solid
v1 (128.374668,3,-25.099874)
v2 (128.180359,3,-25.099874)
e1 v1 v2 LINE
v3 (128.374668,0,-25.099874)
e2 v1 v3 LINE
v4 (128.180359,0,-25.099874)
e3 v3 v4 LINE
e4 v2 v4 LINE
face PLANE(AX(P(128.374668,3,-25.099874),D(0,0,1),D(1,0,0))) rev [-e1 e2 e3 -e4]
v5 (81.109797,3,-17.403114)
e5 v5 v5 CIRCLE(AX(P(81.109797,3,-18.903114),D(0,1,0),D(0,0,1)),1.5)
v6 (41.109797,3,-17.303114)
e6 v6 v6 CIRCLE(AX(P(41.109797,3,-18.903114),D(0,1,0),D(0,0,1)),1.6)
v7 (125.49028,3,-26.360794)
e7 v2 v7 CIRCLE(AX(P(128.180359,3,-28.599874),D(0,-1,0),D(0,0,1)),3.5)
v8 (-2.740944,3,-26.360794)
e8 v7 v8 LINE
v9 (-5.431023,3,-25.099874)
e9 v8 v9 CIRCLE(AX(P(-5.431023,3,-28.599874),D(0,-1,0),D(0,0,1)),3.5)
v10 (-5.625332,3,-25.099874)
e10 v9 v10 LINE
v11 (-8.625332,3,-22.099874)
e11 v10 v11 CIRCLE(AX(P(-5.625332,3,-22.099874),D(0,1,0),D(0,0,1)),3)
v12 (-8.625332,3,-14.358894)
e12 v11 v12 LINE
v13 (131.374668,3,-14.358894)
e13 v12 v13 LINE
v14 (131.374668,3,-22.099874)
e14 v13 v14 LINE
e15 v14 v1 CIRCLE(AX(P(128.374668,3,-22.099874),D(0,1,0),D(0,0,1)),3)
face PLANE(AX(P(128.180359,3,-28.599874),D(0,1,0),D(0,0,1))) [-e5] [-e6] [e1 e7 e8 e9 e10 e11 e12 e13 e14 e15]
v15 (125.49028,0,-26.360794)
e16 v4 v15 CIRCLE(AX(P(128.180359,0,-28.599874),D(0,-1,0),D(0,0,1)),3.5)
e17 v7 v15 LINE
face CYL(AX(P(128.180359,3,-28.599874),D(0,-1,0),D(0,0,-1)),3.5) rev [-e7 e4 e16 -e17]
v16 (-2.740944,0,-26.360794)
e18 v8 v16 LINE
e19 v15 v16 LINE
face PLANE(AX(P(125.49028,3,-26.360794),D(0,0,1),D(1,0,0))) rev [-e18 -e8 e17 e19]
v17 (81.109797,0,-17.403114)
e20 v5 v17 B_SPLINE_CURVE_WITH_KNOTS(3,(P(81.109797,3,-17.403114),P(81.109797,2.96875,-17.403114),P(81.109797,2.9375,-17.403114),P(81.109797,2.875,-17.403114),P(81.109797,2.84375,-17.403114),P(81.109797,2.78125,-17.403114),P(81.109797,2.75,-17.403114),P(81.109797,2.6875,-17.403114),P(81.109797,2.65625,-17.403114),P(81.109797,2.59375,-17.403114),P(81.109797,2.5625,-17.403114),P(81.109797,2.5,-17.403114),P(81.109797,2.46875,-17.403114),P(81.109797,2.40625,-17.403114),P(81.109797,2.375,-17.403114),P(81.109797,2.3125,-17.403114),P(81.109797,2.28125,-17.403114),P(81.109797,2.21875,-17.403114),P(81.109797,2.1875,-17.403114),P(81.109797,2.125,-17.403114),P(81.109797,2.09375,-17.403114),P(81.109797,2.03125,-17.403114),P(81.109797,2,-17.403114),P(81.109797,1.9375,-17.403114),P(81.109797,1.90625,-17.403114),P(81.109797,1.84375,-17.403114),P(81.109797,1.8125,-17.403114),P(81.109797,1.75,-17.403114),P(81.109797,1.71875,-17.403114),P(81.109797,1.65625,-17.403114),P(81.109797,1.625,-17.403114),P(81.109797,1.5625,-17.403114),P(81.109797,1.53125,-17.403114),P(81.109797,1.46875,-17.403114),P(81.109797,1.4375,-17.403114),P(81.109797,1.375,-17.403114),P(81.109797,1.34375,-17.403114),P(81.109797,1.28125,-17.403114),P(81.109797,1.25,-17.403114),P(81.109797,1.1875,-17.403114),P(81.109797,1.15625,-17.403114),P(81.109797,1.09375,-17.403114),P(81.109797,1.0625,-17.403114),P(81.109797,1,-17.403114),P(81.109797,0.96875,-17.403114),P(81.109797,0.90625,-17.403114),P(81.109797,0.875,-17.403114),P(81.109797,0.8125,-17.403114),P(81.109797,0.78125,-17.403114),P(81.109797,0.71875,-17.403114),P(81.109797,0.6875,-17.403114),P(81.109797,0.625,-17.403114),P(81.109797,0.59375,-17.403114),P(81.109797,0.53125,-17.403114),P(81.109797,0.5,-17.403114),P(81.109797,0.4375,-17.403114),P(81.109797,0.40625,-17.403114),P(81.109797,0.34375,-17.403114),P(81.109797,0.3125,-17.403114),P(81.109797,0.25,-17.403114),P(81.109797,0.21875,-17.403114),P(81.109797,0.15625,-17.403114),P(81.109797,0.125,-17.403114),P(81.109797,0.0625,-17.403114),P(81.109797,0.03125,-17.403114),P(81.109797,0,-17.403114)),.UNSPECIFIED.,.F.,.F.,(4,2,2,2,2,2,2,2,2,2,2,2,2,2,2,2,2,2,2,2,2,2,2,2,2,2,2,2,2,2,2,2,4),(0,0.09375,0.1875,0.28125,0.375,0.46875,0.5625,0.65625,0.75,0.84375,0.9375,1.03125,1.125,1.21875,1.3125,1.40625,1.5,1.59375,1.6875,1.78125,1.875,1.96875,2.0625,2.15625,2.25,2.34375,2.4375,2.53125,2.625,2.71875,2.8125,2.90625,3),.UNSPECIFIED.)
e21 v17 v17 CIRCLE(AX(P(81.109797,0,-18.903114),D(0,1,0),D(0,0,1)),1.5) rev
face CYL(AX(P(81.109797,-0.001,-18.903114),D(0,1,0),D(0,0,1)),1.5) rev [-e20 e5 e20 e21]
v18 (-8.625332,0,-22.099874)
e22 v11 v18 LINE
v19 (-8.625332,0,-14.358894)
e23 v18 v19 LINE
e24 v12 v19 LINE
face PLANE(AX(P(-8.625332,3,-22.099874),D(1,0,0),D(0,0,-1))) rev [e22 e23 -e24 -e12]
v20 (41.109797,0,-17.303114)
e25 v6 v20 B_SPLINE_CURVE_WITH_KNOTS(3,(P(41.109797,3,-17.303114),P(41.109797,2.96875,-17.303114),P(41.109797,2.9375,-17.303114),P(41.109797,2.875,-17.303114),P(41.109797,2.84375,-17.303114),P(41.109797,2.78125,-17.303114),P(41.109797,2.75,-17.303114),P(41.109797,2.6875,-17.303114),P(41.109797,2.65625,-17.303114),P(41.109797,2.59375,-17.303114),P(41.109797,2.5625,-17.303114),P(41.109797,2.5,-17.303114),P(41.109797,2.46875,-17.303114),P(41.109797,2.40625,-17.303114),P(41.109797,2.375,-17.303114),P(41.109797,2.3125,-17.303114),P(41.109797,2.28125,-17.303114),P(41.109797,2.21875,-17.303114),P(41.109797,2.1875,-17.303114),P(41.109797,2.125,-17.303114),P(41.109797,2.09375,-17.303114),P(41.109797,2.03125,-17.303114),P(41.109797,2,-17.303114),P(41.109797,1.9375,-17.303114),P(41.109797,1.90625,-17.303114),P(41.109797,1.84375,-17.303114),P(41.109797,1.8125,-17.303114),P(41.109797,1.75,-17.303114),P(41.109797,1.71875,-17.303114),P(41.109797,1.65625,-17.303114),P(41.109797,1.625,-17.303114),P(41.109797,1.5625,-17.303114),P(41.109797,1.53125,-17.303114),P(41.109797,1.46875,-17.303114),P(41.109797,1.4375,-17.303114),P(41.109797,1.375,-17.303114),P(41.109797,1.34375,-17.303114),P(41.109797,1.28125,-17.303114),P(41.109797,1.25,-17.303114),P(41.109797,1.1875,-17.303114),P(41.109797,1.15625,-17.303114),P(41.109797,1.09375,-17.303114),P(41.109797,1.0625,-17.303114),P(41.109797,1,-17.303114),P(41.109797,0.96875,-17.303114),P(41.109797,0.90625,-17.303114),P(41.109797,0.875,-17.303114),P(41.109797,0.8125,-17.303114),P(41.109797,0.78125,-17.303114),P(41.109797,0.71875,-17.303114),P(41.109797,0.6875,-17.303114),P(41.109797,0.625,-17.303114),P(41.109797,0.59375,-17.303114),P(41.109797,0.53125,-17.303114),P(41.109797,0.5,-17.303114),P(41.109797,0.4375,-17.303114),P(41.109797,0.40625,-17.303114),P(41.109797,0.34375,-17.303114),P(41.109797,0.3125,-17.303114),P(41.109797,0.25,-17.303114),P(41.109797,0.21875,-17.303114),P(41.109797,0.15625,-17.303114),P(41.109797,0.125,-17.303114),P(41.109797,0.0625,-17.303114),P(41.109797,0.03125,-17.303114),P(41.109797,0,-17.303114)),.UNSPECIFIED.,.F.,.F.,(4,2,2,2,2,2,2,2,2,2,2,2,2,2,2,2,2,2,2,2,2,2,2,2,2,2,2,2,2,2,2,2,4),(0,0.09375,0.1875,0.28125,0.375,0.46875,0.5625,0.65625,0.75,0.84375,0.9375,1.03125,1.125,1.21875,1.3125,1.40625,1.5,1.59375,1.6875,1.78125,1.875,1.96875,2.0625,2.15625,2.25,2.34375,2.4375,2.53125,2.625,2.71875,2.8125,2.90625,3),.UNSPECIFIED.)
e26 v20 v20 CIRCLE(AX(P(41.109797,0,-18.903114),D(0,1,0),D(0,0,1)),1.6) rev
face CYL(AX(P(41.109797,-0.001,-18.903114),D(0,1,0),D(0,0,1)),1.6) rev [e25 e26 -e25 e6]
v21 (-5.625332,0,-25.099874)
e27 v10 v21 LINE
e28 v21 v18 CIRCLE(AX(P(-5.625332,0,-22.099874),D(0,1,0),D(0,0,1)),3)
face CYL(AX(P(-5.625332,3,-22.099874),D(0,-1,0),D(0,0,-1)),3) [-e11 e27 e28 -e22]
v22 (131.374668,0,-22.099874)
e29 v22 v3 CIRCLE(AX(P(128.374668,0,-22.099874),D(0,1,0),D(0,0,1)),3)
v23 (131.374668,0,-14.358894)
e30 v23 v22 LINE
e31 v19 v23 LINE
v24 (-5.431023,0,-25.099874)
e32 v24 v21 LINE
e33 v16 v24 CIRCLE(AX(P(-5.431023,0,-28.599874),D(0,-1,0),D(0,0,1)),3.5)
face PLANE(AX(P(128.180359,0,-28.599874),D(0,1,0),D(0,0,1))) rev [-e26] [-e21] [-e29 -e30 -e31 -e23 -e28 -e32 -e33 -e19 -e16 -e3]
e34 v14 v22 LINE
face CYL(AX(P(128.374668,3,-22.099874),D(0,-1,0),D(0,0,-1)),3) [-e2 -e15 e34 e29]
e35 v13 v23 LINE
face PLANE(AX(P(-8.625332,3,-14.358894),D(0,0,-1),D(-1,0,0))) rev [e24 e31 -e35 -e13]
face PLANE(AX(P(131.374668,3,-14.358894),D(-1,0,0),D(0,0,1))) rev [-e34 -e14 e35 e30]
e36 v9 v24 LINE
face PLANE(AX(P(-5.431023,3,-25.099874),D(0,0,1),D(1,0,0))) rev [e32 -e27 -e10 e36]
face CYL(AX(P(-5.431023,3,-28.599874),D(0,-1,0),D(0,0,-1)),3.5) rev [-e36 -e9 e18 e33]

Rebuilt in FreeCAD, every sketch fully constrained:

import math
import FreeCAD as App
import Part
import Sketcher

V = App.Vector

doc = App.newDocument("Part")
params = doc.addObject("Spreadsheet::Sheet", "Params")
for row, (alias, value) in enumerate([
    ("sketch1_radius", "3 mm"),
    ("sketch1_radius2", "3.5 mm"),
    ("sketch1_width", "140 mm"),
    ("pad1_length", "3 mm"),
    ("sketch2_diameter", "3 mm"),
    ("sketch3_diameter", "3.2 mm"),
], start=1):
    params.set(f"A{row}", alias)
    params.set(f"B{row}", "=" + value)
    params.setAlias(f"B{row}", alias)

body = doc.addObject("PartDesign::Body", "Body")

# Sketch on XZ plane
sketch1 = doc.addObject("Sketcher::SketchObject", "Sketch")
body.addObject(sketch1)
sketch1.AttachmentSupport = (doc.XZ_Plane, [""])
sketch1.MapMode = "FlatFace"
sketch1.addGeometry([
    Part.LineSegment(V(125.49, -26.36, 0), V(-2.74, -26.36, 0)),  # 0
    Part.ArcOfCircle(Part.Circle(V(-5.43, -28.6, 0), V(0, 0, 1), 3.5), math.radians(40), math.radians(90)),  # 1
    Part.LineSegment(V(-5.43, -25.1, 0), V(-5.63, -25.1, 0)),  # 2
    Part.ArcOfCircle(Part.Circle(V(-5.63, -22.1, 0), V(0, 0, 1), 3), math.radians(-180), math.radians(-90)),  # 3
    Part.LineSegment(V(-8.63, -22.1, 0), V(-8.63, -14.36, 0)),  # 4
    Part.LineSegment(V(-8.63, -14.36, 0), V(131.37, -14.36, 0)),  # 5
    Part.LineSegment(V(131.37, -14.36, 0), V(131.37, -22.1, 0)),  # 6
    Part.ArcOfCircle(Part.Circle(V(128.37, -22.1, 0), V(0, 0, 1), 3), math.radians(-90), math.radians(0)),  # 7
    Part.LineSegment(V(128.37, -25.1, 0), V(128.18, -25.1, 0)),  # 8
    Part.ArcOfCircle(Part.Circle(V(128.18, -28.6, 0), V(0, 0, 1), 3.5), math.radians(90), math.radians(140)),  # 9
], False)
sketch1.addConstraint([
    Sketcher.Constraint("Coincident", 0, 2, 1, 1),
    Sketcher.Constraint("Tangent", 1, 2, 2, 1),
    Sketcher.Constraint("Tangent", 2, 2, 3, 2),
    Sketcher.Constraint("Tangent", 3, 1, 4, 1),
    Sketcher.Constraint("Coincident", 4, 2, 5, 1),
    Sketcher.Constraint("Coincident", 5, 2, 6, 1),
    Sketcher.Constraint("Tangent", 6, 2, 7, 2),
    Sketcher.Constraint("Tangent", 7, 1, 8, 1),
    Sketcher.Constraint("Tangent", 8, 2, 9, 1),
    Sketcher.Constraint("Coincident", 9, 2, 0, 1),
    Sketcher.Constraint("Horizontal", 0),
    Sketcher.Constraint("Horizontal", 2),
    Sketcher.Constraint("Vertical", 4),
    Sketcher.Constraint("Horizontal", 5),
    Sketcher.Constraint("Vertical", 6),
    Sketcher.Constraint("Horizontal", 8),
    Sketcher.Constraint("Equal", 3, 7),
    Sketcher.Constraint("Equal", 1, 9),
    Sketcher.Constraint("Horizontal", 3, 3, 7, 3),
    Sketcher.Constraint("Equal", 2, 8),
    Sketcher.Constraint("Radius", 3, 3.0),
    Sketcher.Constraint("Radius", 1, 3.5),
    Sketcher.Constraint("DistanceX", 5, 1, 5, 2, 140.0),
    Sketcher.Constraint("DistanceX", 2, 2, 2, 1, 0.194309),
    Sketcher.Constraint("DistanceY", 4, 1, 4, 2, 7.74098),
    Sketcher.Constraint("DistanceY", 0, 2, 4, 2, 12.0019),
    Sketcher.Constraint("DistanceX", -1, 1, 9, 3, 128.180359),
    Sketcher.Constraint("DistanceY", 1, 3, -1, 1, 28.599874),
])
sketch1.setExpression("Constraints[20]", "Params.sketch1_radius")
sketch1.setExpression("Constraints[21]", "Params.sketch1_radius2")
sketch1.setExpression("Constraints[22]", "Params.sketch1_width")
pad1 = doc.addObject("PartDesign::Pad", "Pad")
body.addObject(pad1)
pad1.Profile = sketch1
pad1.setExpression("Length", "Params.pad1_length")
pad1.Reversed = True

# Sketch on XZ plane
sketch2 = doc.addObject("Sketcher::SketchObject", "Sketch001")
body.addObject(sketch2)
sketch2.AttachmentSupport = (doc.XZ_Plane, [""])
sketch2.MapMode = "FlatFace"
sketch2.AttachmentOffset = App.Placement(V(0, 0, -3), App.Rotation())
sketch2.addGeometry(Part.Circle(V(81.1, -18.9, 0), V(0, 0, 1), 1.5), False)
sketch2.addConstraint([
    Sketcher.Constraint("Diameter", 0, 3.0),
    Sketcher.Constraint("DistanceX", -1, 1, 0, 3, 81.109797),
    Sketcher.Constraint("DistanceY", 0, 3, -1, 1, 18.903114),
])
sketch2.setExpression("Constraints[0]", "Params.sketch2_diameter")
pocket1 = doc.addObject("PartDesign::Pocket", "Pocket")
body.addObject(pocket1)
pocket1.Profile = sketch2
pocket1.Type = "UpToFirst"
pocket1.Reversed = True

# Sketch on XZ plane
sketch3 = doc.addObject("Sketcher::SketchObject", "Sketch002")
body.addObject(sketch3)
sketch3.AttachmentSupport = (doc.XZ_Plane, [""])
sketch3.MapMode = "FlatFace"
sketch3.AttachmentOffset = App.Placement(V(0, 0, -3), App.Rotation())
sketch3.addGeometry(Part.Circle(V(41.1, -18.9, 0), V(0, 0, 1), 1.6), False)
sketch3.addConstraint([
    Sketcher.Constraint("Diameter", 0, 3.2),
    Sketcher.Constraint("DistanceX", -1, 1, 0, 3, 41.109797),
    Sketcher.Constraint("DistanceY", 0, 3, -1, 1, 18.903114),
])
sketch3.setExpression("Constraints[0]", "Params.sketch3_diameter")
pocket2 = doc.addObject("PartDesign::Pocket", "Pocket001")
body.addObject(pocket2)
pocket2.Profile = sketch3
pocket2.Type = "UpToFirst"
pocket2.Reversed = True

doc.recompute()
